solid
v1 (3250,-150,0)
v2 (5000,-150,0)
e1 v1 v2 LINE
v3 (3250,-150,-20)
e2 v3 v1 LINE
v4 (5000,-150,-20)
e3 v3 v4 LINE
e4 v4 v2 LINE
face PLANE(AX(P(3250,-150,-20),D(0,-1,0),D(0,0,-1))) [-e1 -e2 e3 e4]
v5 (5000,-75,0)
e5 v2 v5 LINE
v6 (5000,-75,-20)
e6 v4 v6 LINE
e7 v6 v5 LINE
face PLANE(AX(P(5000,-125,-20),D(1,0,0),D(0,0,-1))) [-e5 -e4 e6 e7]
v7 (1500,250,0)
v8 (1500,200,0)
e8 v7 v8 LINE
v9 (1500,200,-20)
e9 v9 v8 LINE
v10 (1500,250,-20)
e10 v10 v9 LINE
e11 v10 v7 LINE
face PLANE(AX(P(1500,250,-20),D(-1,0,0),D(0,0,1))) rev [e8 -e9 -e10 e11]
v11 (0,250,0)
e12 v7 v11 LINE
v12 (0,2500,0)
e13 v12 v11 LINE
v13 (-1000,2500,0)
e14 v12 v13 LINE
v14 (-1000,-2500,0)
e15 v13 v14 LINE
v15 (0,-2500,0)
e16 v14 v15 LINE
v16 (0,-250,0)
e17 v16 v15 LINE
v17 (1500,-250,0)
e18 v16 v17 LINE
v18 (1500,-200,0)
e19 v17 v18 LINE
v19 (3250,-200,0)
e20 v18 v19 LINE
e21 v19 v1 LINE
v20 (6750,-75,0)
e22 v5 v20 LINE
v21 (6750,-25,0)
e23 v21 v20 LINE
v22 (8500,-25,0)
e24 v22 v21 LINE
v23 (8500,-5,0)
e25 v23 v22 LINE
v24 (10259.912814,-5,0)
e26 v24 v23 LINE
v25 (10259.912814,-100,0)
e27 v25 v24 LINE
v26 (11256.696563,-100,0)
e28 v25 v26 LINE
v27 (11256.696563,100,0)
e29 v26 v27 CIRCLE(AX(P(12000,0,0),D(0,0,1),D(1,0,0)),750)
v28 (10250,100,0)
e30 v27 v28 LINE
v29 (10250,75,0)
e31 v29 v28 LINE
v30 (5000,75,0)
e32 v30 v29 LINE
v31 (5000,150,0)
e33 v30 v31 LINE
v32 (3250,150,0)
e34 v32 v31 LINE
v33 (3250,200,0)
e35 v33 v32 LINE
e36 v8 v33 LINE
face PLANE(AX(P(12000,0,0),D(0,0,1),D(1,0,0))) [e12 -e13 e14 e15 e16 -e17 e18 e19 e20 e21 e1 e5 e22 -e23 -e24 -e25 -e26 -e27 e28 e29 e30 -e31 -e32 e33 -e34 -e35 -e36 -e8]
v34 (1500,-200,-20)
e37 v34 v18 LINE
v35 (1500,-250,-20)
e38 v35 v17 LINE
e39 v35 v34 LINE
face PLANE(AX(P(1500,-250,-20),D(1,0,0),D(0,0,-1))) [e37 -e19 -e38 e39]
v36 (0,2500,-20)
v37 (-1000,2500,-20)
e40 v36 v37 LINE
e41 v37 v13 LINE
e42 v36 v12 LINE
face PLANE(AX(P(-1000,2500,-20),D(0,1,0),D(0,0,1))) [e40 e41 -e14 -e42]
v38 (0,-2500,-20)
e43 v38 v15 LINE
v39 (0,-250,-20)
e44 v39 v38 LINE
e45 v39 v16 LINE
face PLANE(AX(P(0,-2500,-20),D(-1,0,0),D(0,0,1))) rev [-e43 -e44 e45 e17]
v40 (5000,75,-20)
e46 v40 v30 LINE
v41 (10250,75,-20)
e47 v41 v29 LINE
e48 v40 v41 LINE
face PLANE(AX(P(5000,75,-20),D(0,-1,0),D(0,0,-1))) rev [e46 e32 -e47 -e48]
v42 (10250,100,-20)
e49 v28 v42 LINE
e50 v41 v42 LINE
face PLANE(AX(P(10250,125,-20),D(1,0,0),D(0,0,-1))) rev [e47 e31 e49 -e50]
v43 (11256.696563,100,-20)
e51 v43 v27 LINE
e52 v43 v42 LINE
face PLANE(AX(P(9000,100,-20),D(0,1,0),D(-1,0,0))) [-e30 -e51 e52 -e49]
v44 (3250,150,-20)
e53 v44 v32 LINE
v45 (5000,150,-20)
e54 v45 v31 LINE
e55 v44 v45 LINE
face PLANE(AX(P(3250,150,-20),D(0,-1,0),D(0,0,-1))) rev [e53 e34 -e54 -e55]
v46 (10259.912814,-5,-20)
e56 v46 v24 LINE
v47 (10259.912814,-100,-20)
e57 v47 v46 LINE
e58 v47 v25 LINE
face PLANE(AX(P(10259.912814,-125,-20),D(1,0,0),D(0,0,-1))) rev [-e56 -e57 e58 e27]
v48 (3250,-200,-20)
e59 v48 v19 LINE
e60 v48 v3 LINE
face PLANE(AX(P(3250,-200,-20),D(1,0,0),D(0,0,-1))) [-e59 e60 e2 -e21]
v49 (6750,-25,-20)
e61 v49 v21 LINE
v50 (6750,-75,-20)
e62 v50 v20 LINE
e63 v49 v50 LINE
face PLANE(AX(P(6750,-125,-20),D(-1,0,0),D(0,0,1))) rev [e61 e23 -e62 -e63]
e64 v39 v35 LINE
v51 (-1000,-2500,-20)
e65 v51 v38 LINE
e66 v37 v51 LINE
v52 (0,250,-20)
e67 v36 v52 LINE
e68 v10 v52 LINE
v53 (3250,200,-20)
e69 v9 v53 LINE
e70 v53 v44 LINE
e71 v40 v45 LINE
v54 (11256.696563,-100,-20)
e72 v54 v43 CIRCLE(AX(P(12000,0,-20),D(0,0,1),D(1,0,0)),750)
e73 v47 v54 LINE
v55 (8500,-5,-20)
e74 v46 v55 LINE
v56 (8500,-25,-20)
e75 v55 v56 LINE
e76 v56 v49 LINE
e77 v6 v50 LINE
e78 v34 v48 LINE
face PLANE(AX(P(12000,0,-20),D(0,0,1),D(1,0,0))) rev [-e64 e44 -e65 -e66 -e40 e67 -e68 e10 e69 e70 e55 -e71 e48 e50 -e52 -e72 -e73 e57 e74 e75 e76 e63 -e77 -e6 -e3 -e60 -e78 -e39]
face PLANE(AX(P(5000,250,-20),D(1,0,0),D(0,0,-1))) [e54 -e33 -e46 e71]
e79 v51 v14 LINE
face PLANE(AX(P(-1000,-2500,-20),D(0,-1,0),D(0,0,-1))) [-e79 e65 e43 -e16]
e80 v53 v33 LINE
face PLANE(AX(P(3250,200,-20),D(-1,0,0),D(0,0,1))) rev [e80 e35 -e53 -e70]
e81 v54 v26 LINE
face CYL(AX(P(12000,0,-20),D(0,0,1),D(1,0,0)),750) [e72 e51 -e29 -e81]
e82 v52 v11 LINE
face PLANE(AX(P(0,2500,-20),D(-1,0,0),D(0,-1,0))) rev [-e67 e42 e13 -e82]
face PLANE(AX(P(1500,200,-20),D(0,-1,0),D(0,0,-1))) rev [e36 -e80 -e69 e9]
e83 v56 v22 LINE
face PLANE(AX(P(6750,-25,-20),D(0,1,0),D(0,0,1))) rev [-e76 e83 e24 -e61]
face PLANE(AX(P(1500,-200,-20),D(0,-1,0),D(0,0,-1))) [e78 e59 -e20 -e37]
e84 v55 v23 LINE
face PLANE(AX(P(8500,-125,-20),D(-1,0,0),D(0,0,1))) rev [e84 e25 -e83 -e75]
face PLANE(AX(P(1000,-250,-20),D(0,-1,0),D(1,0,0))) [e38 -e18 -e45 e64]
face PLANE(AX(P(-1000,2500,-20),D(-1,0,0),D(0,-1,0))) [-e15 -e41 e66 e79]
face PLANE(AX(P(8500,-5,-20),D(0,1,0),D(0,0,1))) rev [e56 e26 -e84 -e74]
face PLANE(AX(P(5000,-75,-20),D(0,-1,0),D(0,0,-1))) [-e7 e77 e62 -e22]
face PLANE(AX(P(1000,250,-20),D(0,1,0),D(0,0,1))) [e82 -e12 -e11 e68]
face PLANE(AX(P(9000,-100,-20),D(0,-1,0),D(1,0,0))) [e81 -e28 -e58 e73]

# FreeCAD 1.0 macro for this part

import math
import FreeCAD as App
import Part
import Sketcher
from FreeCAD import Vector
Q = App.Units.Quantity


def add_polygon(sketch, points):
    """Adds a closed chain of lines whose ends are joined by coincident constraints."""
    first, n = sketch.GeometryCount, len(points)
    for a, b in zip(points, points[1:] + points[:1]):
        sketch.addGeometry(Part.LineSegment(App.Vector(*a, 0), App.Vector(*b, 0)), False)
    for i in range(n):
        sketch.addConstraint(Sketcher.Constraint("Coincident", first + i, 2, first + (i + 1) % n, 1))

doc = App.newDocument("Part")
body = doc.addObject("PartDesign::Body", "Body")

# Sketch on XY plane
sketch1 = body.newObject("Sketcher::SketchObject", "Sketch")
sketch1.AttachmentSupport = (doc.getObject("XY_Plane"), [""])
sketch1.MapMode = "FlatFace"
sketch1.addGeometry([
    Part.LineSegment(Vector(5000, 250, 0), Vector(1000, 250, 0)),  # 0
    Part.LineSegment(Vector(1000, 250, 0), Vector(1000, 2500, 0)),  # 1
    Part.LineSegment(Vector(1000, 2500, 0), Vector(-1000, 2500, 0)),  # 2
    Part.LineSegment(Vector(-1000, 2500, 0), Vector(-1000, -2500, 0)),  # 3
    Part.LineSegment(Vector(-1000, -2500, 0), Vector(1000, -2500, 0)),  # 4
    Part.LineSegment(Vector(1000, -2500, 0), Vector(1000, -250, 0)),  # 5
    Part.LineSegment(Vector(1000, -250, 0), Vector(5000, -250, 0)),  # 6
    Part.LineSegment(Vector(5000, -250, 0), Vector(5000, -125, 0)),  # 7
    Part.LineSegment(Vector(5000, -125, 0), Vector(9000, -125, 0)),  # 8
    Part.LineSegment(Vector(9000, -125, 0), Vector(9000, -100, 0)),  # 9
    Part.LineSegment(Vector(9000, -100, 0), Vector(11257, -100, 0)),  # 10
    Part.ArcOfCircle(Part.Circle(Vector(12000, 0, 0), Vector(0, 0, 1), 750), math.radians(-172), math.radians(172)),  # 11
    Part.LineSegment(Vector(11257, 100, 0), Vector(9000, 100, 0)),  # 12
    Part.LineSegment(Vector(9000, 100, 0), Vector(9000, 125, 0)),  # 13
    Part.LineSegment(Vector(9000, 125, 0), Vector(5000, 125, 0)),  # 14
    Part.LineSegment(Vector(5000, 125, 0), Vector(5000, 250, 0)),  # 15
], False)
sketch1.addConstraint([
    Sketcher.Constraint("Coincident", 0, 2, 1, 1),
    Sketcher.Constraint("Coincident", 1, 2, 2, 1),
    Sketcher.Constraint("Coincident", 2, 2, 3, 1),
    Sketcher.Constraint("Coincident", 3, 2, 4, 1),
    Sketcher.Constraint("Coincident", 4, 2, 5, 1),
    Sketcher.Constraint("Coincident", 5, 2, 6, 1),
    Sketcher.Constraint("Coincident", 6, 2, 7, 1),
    Sketcher.Constraint("Coincident", 7, 2, 8, 1),
    Sketcher.Constraint("Coincident", 8, 2, 9, 1),
    Sketcher.Constraint("Coincident", 9, 2, 10, 1),
    Sketcher.Constraint("Coincident", 10, 2, 11, 1),
    Sketcher.Constraint("Coincident", 11, 2, 12, 1),
    Sketcher.Constraint("Coincident", 12, 2, 13, 1),
    Sketcher.Constraint("Coincident", 13, 2, 14, 1),
    Sketcher.Constraint("Coincident", 14, 2, 15, 1),
    Sketcher.Constraint("Coincident", 15, 2, 0, 1),
    Sketcher.Constraint("Horizontal", 0),
    Sketcher.Constraint("Vertical", 1),
    Sketcher.Constraint("Horizontal", 2),
    Sketcher.Constraint("Vertical", 3),
    Sketcher.Constraint("Horizontal", 4),
    Sketcher.Constraint("Vertical", 5),
    Sketcher.Constraint("Horizontal", 6),
    Sketcher.Constraint("Vertical", 7),
    Sketcher.Constraint("Horizontal", 8),
    Sketcher.Constraint("Vertical", 9),
    Sketcher.Constraint("Horizontal", 10),
    Sketcher.Constraint("Horizontal", 12),
    Sketcher.Constraint("Vertical", 13),
    Sketcher.Constraint("Horizontal", 14),
    Sketcher.Constraint("Vertical", 15),
    Sketcher.Constraint("Symmetric", 1, 2, 3, 2, -1, 1),
    Sketcher.Constraint("Symmetric", 0, 2, 5, 2, -1),
    Sketcher.Constraint("Symmetric", 9, 2, 12, 2, -1),
    Sketcher.Constraint("Symmetric", 7, 2, 14, 2, -1),
    Sketcher.Constraint("PointOnObject", 11, 3, -1),
    Sketcher.Constraint("Equal", 6, 8),
    Sketcher.Constraint("Radius", 11, Q("750 mm")),
    Sketcher.Constraint("DistanceX", 0, 2, 0, 1, Q("4000 mm")),
    Sketcher.Constraint("DistanceX", 2, 2, 2, 1, Q("2000 mm")),
    Sketcher.Constraint("DistanceY", 1, 1, 1, 2, Q("2250 mm")),
    Sketcher.Constraint("DistanceY", 3, 2, 3, 1, Q("5000 mm")),
    Sketcher.Constraint("DistanceY", 7, 1, 7, 2, Q("125 mm")),
    Sketcher.Constraint("DistanceY", 9, 1, 9, 2, Q("25 mm")),
    Sketcher.Constraint("DistanceX", -1, 1, 11, 3, Q("12000 mm")),
])
pad1 = body.newObject("PartDesign::Pad", "Pad")
pad1.Profile = sketch1
pad1.Length = 20
pad1.Reversed = True

# Sketch on XY plane
sketch2 = body.newObject("Sketcher::SketchObject", "Sketch001")
sketch2.AttachmentSupport = (doc.getObject("XY_Plane"), [""])
sketch2.MapMode = "FlatFace"
add_polygon(sketch2, [(0, 2500), (0, 250), (1000, 250), (1000, 2500)])  # lines 0-3
add_polygon(sketch2, [(0, -250), (0, -2500), (1000, -2500), (1000, -250)])  # lines 4-7
sketch2.addConstraint([
    Sketcher.Constraint("Vertical", 0),
    Sketcher.Constraint("Horizontal", 1),
    Sketcher.Constraint("Vertical", 2),
    Sketcher.Constraint("Horizontal", 3),
    Sketcher.Constraint("Vertical", 4),
    Sketcher.Constraint("Horizontal", 5),
    Sketcher.Constraint("Vertical", 6),
    Sketcher.Constraint("Horizontal", 7),
    Sketcher.Constraint("Symmetric", 3, 2, 4, 2, -1, 1),
    Sketcher.Constraint("Symmetric", 1, 2, 6, 2, -1),
    Sketcher.Constraint("PointOnObject", 0, 2, -2),
    Sketcher.Constraint("DistanceX", 1, 1, 1, 2, Q("1000 mm")),
    Sketcher.Constraint("DistanceY", 0, 2, 0, 1, Q("2250 mm")),
    Sketcher.Constraint("DistanceY", -1, 1, 0, 2, Q("250 mm")),
])
pocket1 = body.newObject("PartDesign::Pocket", "Pocket")
pocket1.Profile = sketch2
pocket1.Type = "ThroughAll"

# Sketch on XY plane
sketch3 = body.newObject("Sketcher::SketchObject", "Sketch002")
sketch3.AttachmentSupport = (doc.getObject("XY_Plane"), [""])
sketch3.MapMode = "FlatFace"
add_polygon(sketch3, [(1500, -250), (5000, -250), (5000, -150), (3250, -150), (3250, -200), (1500, -200)])  # lines 0-5
sketch3.addConstraint([
    Sketcher.Constraint("Horizontal", 0),
    Sketcher.Constraint("Vertical", 1),
    Sketcher.Constraint("Horizontal", 2),
    Sketcher.Constraint("Vertical", 3),
    Sketcher.Constraint("Horizontal", 4),
    Sketcher.Constraint("Vertical", 5),
    Sketcher.Constraint("Equal", 2, 4),
    Sketcher.Constraint("Equal", 3, 5),
    Sketcher.Constraint("DistanceX", 0, 1, 0, 2, Q("3500 mm")),
    Sketcher.Constraint("DistanceY", 1, 1, 1, 2, Q("100 mm")),
    Sketcher.Constraint("DistanceX", -1, 1, 0, 2, Q("5000 mm")),
    Sketcher.Constraint("DistanceY", 0, 2, -1, 1, Q("250 mm")),
])
pocket2 = body.newObject("PartDesign::Pocket", "Pocket001")
pocket2.Profile = sketch3
pocket2.Type = "ThroughAll"
doc.recompute()

mirrored = body.newObject("PartDesign::Mirrored", "Mirrored")
mirrored.Originals = [pocket2]
mirrored.MirrorPlane = (doc.getObject("XZ_Plane"), [""])
body.Tip = mirrored

# Sketch on XY plane
sketch4 = body.newObject("Sketcher::SketchObject", "Sketch003")
sketch4.AttachmentSupport = (doc.getObject("XY_Plane"), [""])
sketch4.MapMode = "FlatFace"
add_polygon(sketch4, [(5000, 125), (5000, 75), (6750, 75), (6750, 125)])  # lines 0-3
sketch4.addConstraint([
    Sketcher.Constraint("Vertical", 0),
    Sketcher.Constraint("Horizontal", 1),
    Sketcher.Constraint("Vertical", 2),
    Sketcher.Constraint("Horizontal", 3),
    Sketcher.Constraint("DistanceX", 1, 1, 1, 2, Q("1750 mm")),
    Sketcher.Constraint("DistanceY", 0, 2, 0, 1, Q("50 mm")),
    Sketcher.Constraint("DistanceX", -1, 1, 0, 2, Q("5000 mm")),
    Sketcher.Constraint("DistanceY", -1, 1, 0, 2, Q("75 mm")),
])
pocket3 = body.newObject("PartDesign::Pocket", "Pocket002")
pocket3.Profile = sketch4
pocket3.Type = "ThroughAll"
doc.recompute()

mirrored2 = body.newObject("PartDesign::Mirrored", "Mirrored001")
mirrored2.Originals = [pocket3]
mirrored2.MirrorPlane = (doc.getObject("XZ_Plane"), [""])
body.Tip = mirrored2

# Sketch on XY plane
sketch5 = body.newObject("Sketcher::SketchObject", "Sketch004")
sketch5.AttachmentSupport = (doc.getObject("XY_Plane"), [""])
sketch5.MapMode = "FlatFace"
add_polygon(sketch5, [(6750, 125), (6750, 75), (8500, 75), (8500, 125)])  # lines 0-3
sketch5.addConstraint([
    Sketcher.Constraint("Vertical", 0),
    Sketcher.Constraint("Horizontal", 1),
    Sketcher.Constraint("Vertical", 2),
    Sketcher.Constraint("Horizontal", 3),
    Sketcher.Constraint("DistanceX", 1, 1, 1, 2, Q("1750 mm")),
    Sketcher.Constraint("DistanceY", 0, 2, 0, 1, Q("50 mm")),
    Sketcher.Constraint("DistanceX", -1, 1, 0, 2, Q("6750 mm")),
    Sketcher.Constraint("DistanceY", -1, 1, 0, 2, Q("75 mm")),
])
pocket4 = body.newObject("PartDesign::Pocket", "Pocket003")
pocket4.Profile = sketch5
pocket4.Type = "ThroughAll"

# Sketch on XY plane
sketch6 = body.newObject("Sketcher::SketchObject", "Sketch005")
sketch6.AttachmentSupport = (doc.getObject("XY_Plane"), [""])
sketch6.MapMode = "FlatFace"
add_polygon(sketch6, [(6750, -25), (6750, -125), (8500, -125), (8500, -25)])  # lines 0-3
sketch6.addConstraint([
    Sketcher.Constraint("Vertical", 0),
    Sketcher.Constraint("Horizontal", 1),
    Sketcher.Constraint("Vertical", 2),
    Sketcher.Constraint("Horizontal", 3),
    Sketcher.Constraint("DistanceX", 1, 1, 1, 2, Q("1750 mm")),
    Sketcher.Constraint("DistanceY", 0, 2, 0, 1, Q("100 mm")),
    Sketcher.Constraint("DistanceX", -1, 1, 0, 2, Q("6750 mm")),
    Sketcher.Constraint("DistanceY", 0, 2, -1, 1, Q("125 mm")),
])
pocket5 = body.newObject("PartDesign::Pocket", "Pocket004")
pocket5.Profile = sketch6
pocket5.Type = "ThroughAll"

# Sketch on XY plane
sketch7 = body.newObject("Sketcher::SketchObject", "Sketch006")
sketch7.AttachmentSupport = (doc.getObject("XY_Plane"), [""])
sketch7.MapMode = "FlatFace"
add_polygon(sketch7, [(8500, 125), (8500, 75), (10250, 75), (10250, 125)])  # lines 0-3
sketch7.addConstraint([
    Sketcher.Constraint("Vertical", 0),
    Sketcher.Constraint("Horizontal", 1),
    Sketcher.Constraint("Vertical", 2),
    Sketcher.Constraint("Horizontal", 3),
    Sketcher.Constraint("DistanceX", 1, 1, 1, 2, Q("1750 mm")),
    Sketcher.Constraint("DistanceY", 0, 2, 0, 1, Q("50 mm")),
    Sketcher.Constraint("DistanceX", -1, 1, 0, 2, Q("8500 mm")),
    Sketcher.Constraint("DistanceY", -1, 1, 0, 2, Q("75 mm")),
])
pocket6 = body.newObject("PartDesign::Pocket", "Pocket005")
pocket6.Profile = sketch7
pocket6.Type = "ThroughAll"

# Sketch on XY plane
sketch8 = body.newObject("Sketcher::SketchObject", "Sketch007")
sketch8.AttachmentSupport = (doc.getObject("XY_Plane"), [""])
sketch8.MapMode = "FlatFace"
add_polygon(sketch8, [(8500, -5), (8500, -125), (10260, -125), (10260, -5)])  # lines 0-3
sketch8.addConstraint([
    Sketcher.Constraint("Vertical", 0),
    Sketcher.Constraint("Horizontal", 1),
    Sketcher.Constraint("Vertical", 2),
    Sketcher.Constraint("Horizontal", 3),
    Sketcher.Constraint("DistanceY", 0, 2, 0, 1, Q("120 mm")),
    Sketcher.Constraint("DistanceX", -1, 1, 0, 2, Q("8500 mm")),
    Sketcher.Constraint("DistanceY", 0, 2, -1, 1, Q("125 mm")),
    Sketcher.Constraint("DistanceX", 1, 1, 1, 2, Q("1759.912814 mm")),
])
pocket7 = body.newObject("PartDesign::Pocket", "Pocket006")
pocket7.Profile = sketch8
pocket7.Type = "ThroughAll"

doc.recompute()
